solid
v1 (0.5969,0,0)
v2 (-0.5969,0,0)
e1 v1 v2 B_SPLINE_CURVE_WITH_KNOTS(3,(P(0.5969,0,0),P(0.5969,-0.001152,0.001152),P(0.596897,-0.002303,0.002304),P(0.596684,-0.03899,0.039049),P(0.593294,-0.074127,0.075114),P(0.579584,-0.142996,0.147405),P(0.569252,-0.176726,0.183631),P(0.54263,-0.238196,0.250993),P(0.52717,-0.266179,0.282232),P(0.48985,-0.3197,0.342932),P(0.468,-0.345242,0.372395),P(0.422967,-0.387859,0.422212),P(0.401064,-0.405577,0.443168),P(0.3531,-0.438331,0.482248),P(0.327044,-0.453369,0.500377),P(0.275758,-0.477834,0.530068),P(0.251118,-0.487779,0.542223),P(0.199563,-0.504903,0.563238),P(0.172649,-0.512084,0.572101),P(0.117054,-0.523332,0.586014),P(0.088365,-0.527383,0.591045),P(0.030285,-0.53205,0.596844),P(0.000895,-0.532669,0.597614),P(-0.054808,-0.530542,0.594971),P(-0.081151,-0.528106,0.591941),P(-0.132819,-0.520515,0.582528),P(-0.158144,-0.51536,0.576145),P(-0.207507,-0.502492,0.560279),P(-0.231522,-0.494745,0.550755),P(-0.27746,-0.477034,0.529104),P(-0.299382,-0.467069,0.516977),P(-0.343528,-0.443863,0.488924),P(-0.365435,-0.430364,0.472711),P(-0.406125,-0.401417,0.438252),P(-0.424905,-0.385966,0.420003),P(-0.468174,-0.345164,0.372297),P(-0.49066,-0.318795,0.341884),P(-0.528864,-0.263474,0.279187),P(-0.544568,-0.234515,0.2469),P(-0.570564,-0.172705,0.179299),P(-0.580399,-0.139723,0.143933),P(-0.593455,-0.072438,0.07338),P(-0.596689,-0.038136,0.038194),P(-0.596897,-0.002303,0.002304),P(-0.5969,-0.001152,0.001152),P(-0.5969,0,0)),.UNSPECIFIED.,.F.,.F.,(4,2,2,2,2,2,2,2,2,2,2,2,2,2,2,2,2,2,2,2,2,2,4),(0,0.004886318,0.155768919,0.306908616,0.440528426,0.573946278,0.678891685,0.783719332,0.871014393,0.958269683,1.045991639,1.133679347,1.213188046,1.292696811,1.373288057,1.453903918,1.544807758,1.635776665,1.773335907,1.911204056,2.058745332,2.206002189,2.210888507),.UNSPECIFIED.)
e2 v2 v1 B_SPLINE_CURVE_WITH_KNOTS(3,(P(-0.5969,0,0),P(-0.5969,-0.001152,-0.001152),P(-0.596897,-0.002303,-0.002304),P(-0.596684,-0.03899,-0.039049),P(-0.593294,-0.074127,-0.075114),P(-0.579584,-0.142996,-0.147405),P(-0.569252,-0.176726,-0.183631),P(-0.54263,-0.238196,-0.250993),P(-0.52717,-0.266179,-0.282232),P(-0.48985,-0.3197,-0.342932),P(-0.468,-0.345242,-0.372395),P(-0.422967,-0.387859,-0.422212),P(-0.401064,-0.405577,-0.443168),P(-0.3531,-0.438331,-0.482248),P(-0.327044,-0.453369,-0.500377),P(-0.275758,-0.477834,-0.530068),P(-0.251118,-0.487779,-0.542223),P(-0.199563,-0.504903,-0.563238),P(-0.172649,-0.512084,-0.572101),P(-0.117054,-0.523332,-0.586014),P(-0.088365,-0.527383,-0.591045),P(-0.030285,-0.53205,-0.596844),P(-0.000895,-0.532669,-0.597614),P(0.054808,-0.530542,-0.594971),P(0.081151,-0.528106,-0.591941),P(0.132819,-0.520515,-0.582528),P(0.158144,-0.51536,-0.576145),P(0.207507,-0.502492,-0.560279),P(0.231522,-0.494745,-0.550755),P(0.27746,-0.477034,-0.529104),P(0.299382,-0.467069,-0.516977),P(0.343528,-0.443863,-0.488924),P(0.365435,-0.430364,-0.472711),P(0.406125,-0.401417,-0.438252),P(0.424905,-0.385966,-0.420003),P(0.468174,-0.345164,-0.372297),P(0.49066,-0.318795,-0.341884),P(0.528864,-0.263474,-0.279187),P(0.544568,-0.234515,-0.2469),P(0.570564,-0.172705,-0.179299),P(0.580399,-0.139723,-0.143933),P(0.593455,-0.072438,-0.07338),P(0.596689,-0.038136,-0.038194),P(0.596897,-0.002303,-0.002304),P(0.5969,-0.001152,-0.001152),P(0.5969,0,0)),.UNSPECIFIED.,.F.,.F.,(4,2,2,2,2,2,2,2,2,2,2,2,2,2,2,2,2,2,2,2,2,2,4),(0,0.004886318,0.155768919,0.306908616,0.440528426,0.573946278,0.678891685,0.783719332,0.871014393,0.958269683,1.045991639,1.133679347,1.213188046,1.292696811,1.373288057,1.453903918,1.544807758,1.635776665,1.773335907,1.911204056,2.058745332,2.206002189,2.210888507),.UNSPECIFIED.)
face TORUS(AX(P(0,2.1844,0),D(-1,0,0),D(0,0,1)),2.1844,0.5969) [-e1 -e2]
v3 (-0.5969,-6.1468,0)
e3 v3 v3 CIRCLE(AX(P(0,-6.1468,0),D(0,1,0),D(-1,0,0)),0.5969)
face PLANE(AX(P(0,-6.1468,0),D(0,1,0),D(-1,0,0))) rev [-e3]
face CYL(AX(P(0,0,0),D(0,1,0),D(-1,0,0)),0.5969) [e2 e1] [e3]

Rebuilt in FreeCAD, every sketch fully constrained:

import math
import FreeCAD as App
import Part
import Sketcher
Q = App.Units.Quantity

doc = App.newDocument("Part")
params = doc.addObject("Spreadsheet::Sheet", "Params")
for row, (alias, value) in enumerate([
    ("sketch1_diameter", "0.047 in"),
    ("revolution_angle", "360 deg"),
    ("sketch2_height", "0.242 in"),
    ("revolution2_angle", "360 deg"),
], start=1):
    params.set(f"A{row}", alias)
    params.set(f"B{row}", "=" + value)
    params.setAlias(f"B{row}", alias)

body = doc.addObject("PartDesign::Body", "Body")

sketch1 = doc.addObject("Sketcher::SketchObject", "Sketch")
body.addObject(sketch1)
sketch1.AttachmentSupport = (doc.XY_Plane, [""])
sketch1.MapMode = "FlatFace"
sketch1.addGeometry(Part.Circle(App.Vector(0, 0, 0), App.Vector(0, 0, 1), 0.6), False)
sketch1.addGeometry(Part.LineSegment(App.Vector(0, 2.2, 0), App.Vector(10, 2.2, 0)), True)
sketch1.addConstraint([
    Sketcher.Constraint("Horizontal", 1),
    Sketcher.Constraint("Coincident", 0, 3, -1, 1),
    Sketcher.Constraint("PointOnObject", 1, 1, -2),
    Sketcher.Constraint("Diameter", 0, Q("0.047 in")),
    Sketcher.Constraint("DistanceY", -1, 1, 1, 1, Q("0.086 in")),
    Sketcher.Constraint("DistanceX", 1, 1, 1, 2, Q("10 mm")),
])
sketch1.setExpression("Constraints[3]", "Params.sketch1_diameter")
revolution = doc.addObject("PartDesign::Revolution", "Revolution")
body.addObject(revolution)
revolution.Profile = sketch1
revolution.ReferenceAxis = (sketch1, ["Axis0"])
revolution.setExpression("Angle", "Params.revolution_angle")

sketch2 = doc.addObject("Sketcher::SketchObject", "Sketch001")
body.addObject(sketch2)
sketch2.AttachmentSupport = (doc.XY_Plane, [""])
sketch2.MapMode = "FlatFace"
sketch2.addGeometry([
    Part.LineSegment(App.Vector(0.6, -6.1, 0), App.Vector(0.6, 0, 0)),
    Part.ArcOfCircle(Part.Circle(App.Vector(0, 0, 0), App.Vector(0, 0, 1), 0.6), math.radians(-90), math.radians(0)),
    Part.LineSegment(App.Vector(0, -0.6, 0), App.Vector(0, -6.1, 0)),
    Part.LineSegment(App.Vector(0, -6.1, 0), App.Vector(0.6, -6.1, 0)),
], False)
sketch2.addConstraint([
    Sketcher.Constraint("Tangent", 0, 2, 1, 2),
    Sketcher.Constraint("Coincident", 1, 1, 2, 1),
    Sketcher.Constraint("Coincident", 2, 2, 3, 1),
    Sketcher.Constraint("Coincident", 3, 2, 0, 1),
    Sketcher.Constraint("Vertical", 0),
    Sketcher.Constraint("Vertical", 2),
    Sketcher.Constraint("Horizontal", 3),
    Sketcher.Constraint("Coincident", 1, 3, -1, 1),
    Sketcher.Constraint("PointOnObject", 1, 1, -2),
    Sketcher.Constraint("Radius", 1, Q("0.0235 in")),
    Sketcher.Constraint("DistanceY", 0, 1, 0, 2, Q("0.242 in")),
])
sketch2.setExpression("Constraints[10]", "Params.sketch2_height")
revolution2 = doc.addObject("PartDesign::Revolution", "Revolution001")
body.addObject(revolution2)
revolution2.Profile = sketch2
revolution2.ReferenceAxis = (sketch2, ["V_Axis"])
revolution2.setExpression("Angle", "Params.revolution2_angle")

doc.recompute()
